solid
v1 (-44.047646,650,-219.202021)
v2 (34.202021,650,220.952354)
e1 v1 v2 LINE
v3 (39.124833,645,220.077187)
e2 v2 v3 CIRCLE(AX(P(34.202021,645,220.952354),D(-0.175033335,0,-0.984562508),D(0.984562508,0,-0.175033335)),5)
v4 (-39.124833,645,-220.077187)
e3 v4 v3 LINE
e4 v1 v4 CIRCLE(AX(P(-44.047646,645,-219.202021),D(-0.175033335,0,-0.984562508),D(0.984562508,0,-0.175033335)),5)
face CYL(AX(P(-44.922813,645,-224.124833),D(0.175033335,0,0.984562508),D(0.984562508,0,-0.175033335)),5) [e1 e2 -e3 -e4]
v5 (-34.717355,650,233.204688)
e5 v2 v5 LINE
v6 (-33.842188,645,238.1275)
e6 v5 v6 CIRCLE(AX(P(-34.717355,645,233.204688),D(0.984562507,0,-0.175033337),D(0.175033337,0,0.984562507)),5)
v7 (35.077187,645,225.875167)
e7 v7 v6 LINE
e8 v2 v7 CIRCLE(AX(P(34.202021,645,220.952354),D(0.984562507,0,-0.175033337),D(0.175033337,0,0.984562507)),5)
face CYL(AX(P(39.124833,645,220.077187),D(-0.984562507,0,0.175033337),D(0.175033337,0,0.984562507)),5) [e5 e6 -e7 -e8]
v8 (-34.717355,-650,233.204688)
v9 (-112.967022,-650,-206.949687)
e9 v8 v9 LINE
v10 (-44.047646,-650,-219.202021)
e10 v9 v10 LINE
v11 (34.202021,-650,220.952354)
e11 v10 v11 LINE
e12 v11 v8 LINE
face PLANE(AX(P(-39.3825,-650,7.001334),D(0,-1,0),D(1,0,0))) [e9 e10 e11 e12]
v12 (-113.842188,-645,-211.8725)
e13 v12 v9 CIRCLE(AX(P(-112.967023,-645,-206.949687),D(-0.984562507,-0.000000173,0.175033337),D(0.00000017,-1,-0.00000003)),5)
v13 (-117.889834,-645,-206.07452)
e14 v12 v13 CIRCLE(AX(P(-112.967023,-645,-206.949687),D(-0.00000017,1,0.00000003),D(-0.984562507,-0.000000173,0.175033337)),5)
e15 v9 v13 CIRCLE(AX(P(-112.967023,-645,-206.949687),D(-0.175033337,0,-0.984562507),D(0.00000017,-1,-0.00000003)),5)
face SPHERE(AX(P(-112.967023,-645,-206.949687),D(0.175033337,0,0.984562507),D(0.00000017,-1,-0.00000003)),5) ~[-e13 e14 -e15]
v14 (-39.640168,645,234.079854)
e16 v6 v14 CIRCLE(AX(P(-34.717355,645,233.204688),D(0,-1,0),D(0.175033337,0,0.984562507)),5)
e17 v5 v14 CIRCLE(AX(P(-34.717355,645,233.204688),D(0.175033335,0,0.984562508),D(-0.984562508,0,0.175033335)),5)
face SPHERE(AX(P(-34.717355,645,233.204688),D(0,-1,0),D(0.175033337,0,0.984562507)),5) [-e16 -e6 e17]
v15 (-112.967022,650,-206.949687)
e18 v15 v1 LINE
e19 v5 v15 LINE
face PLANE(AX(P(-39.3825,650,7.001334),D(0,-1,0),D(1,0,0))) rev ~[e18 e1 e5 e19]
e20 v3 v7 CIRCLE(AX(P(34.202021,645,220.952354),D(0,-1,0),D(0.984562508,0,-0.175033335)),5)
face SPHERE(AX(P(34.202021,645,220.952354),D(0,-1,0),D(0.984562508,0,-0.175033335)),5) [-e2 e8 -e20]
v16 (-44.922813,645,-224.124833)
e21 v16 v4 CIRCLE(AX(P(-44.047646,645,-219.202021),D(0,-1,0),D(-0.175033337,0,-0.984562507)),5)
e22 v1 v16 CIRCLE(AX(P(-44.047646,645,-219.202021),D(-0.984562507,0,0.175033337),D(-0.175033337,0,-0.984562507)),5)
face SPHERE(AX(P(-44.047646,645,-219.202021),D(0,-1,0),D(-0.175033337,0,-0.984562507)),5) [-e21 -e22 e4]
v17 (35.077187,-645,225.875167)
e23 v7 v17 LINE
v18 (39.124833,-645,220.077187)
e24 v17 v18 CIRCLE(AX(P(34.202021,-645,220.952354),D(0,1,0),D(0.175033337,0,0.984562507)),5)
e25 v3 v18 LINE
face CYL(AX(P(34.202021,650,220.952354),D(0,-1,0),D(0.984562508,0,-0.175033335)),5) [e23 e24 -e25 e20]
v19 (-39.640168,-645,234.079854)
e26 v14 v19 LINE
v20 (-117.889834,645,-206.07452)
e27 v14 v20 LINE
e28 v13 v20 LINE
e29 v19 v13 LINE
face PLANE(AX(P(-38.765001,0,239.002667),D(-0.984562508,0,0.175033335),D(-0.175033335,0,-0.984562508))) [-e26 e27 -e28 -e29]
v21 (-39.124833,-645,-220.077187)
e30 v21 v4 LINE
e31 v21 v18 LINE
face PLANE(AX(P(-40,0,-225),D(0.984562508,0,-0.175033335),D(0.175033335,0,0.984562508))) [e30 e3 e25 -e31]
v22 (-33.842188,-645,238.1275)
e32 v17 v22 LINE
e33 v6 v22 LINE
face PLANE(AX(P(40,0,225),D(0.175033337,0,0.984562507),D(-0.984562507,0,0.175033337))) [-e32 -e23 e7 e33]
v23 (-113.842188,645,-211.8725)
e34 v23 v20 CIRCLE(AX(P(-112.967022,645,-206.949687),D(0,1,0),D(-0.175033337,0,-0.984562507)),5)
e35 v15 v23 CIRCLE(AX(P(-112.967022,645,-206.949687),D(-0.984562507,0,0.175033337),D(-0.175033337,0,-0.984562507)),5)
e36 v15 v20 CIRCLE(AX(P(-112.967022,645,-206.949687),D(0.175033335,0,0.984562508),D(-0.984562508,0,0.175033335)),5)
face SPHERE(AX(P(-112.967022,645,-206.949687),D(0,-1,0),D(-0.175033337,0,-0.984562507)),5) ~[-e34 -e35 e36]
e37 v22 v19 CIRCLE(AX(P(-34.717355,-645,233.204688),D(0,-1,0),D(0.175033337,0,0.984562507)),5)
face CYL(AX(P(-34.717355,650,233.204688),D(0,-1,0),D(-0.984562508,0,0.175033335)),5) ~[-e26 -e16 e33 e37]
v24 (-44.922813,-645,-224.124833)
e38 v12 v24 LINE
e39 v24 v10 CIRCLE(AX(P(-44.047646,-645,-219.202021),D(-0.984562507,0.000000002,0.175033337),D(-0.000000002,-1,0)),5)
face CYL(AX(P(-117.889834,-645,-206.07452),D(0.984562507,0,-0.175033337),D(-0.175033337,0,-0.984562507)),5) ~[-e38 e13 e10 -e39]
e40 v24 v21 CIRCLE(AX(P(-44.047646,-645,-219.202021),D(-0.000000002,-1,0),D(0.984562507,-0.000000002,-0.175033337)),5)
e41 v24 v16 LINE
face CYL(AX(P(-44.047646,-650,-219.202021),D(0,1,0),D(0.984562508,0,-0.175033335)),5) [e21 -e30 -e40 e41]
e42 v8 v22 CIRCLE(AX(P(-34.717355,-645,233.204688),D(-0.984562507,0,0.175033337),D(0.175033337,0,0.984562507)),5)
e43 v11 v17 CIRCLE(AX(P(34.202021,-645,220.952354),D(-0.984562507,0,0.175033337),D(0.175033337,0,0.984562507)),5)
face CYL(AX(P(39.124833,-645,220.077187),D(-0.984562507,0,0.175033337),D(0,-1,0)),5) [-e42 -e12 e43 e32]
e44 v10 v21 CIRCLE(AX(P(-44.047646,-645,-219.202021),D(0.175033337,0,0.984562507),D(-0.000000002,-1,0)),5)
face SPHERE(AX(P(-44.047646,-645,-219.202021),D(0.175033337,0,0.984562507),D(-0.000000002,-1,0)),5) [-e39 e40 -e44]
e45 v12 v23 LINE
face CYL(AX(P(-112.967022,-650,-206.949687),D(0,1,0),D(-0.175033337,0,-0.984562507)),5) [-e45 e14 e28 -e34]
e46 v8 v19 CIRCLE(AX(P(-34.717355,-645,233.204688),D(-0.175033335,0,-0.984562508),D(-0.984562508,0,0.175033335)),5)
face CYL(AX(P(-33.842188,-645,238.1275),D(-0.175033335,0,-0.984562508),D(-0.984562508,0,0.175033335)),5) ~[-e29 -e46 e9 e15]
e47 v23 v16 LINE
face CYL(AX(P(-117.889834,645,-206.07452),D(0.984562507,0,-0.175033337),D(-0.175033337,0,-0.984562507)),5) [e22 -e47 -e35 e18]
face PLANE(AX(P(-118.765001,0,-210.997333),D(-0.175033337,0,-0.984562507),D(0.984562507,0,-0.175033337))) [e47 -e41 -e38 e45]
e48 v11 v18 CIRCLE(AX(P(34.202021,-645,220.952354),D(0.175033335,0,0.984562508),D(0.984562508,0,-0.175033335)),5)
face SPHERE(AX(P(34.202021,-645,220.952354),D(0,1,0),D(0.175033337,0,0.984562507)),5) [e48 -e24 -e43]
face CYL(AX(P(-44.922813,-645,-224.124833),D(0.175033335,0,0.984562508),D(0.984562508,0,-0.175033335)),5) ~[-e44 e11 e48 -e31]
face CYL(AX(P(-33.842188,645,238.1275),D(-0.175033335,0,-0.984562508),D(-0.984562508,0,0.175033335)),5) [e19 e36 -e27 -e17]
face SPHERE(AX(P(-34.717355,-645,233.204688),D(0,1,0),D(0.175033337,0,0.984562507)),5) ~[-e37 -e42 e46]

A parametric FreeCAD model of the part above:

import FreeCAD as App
import Part
import Sketcher
from FreeCAD import Vector

doc = App.newDocument("Part")
params = doc.addObject("Spreadsheet::Sheet", "Params")
for row, (alias, value) in enumerate([
    ("sketch1_length", "80 mm"),
    ("pad1_length", "1300 mm"),
    ("fillet_radius", "5 mm"),
], start=1):
    params.set(f"A{row}", alias)
    params.set(f"B{row}", "=" + value)
    params.setAlias(f"B{row}", alias)

body = doc.addObject("PartDesign::Body", "Body")

# Sketch on XZ plane
sketch1 = doc.addObject("Sketcher::SketchObject", "Sketch")
body.addObject(sketch1)
sketch1.AttachmentSupport = (doc.XZ_Plane, [""])
sketch1.MapMode = "FlatFace"
sketch1.addGeometry(Part.LineSegment(Vector(-40, -225, 0), Vector(40, 225, 0)), False)
sketch1.addGeometry(Part.LineSegment(Vector(40, 225, 0), Vector(-39, 239, 0)), False)
sketch1.addGeometry(Part.LineSegment(Vector(-39, 239, 0), Vector(-119, -211, 0)), False)
sketch1.addGeometry(Part.LineSegment(Vector(-119, -211, 0), Vector(-40, -225, 0)), False)
sketch1.addConstraint(Sketcher.Constraint("Coincident", 0, 2, 1, 1))
sketch1.addConstraint(Sketcher.Constraint("Coincident", 1, 2, 2, 1))
sketch1.addConstraint(Sketcher.Constraint("Coincident", 2, 2, 3, 1))
sketch1.addConstraint(Sketcher.Constraint("Coincident", 3, 2, 0, 1))
sketch1.addConstraint(Sketcher.Constraint("Symmetric", 0, 2, 3, 2, -1, 1))
sketch1.addConstraint(Sketcher.Constraint("Perpendicular", 0, 1))
sketch1.addConstraint(Sketcher.Constraint("Perpendicular", 1, 2))
sketch1.addConstraint(Sketcher.Constraint("Perpendicular", 2, 3))
sketch1.addConstraint(Sketcher.Constraint("Distance", 1, 80.0))
sketch1.addConstraint(Sketcher.Constraint("DistanceX", -1, 1, 0, 2, 40.0))
sketch1.addConstraint(Sketcher.Constraint("DistanceY", -1, 1, 0, 2, 225.0))
sketch1.setExpression("Constraints[8]", "Params.sketch1_length")
pad1 = doc.addObject("PartDesign::Pad", "Pad")
body.addObject(pad1)
pad1.Profile = sketch1
pad1.setExpression("Length", "Params.pad1_length")
pad1.Midplane = True
doc.recompute()

fillet = doc.addObject("PartDesign::Fillet", "Fillet")
body.addObject(fillet)
fillet.Base = (pad1, ["Edge1"])
fillet.UseAllEdges = True
fillet.setExpression("Radius", "Params.fillet_radius")

doc.recompute()
